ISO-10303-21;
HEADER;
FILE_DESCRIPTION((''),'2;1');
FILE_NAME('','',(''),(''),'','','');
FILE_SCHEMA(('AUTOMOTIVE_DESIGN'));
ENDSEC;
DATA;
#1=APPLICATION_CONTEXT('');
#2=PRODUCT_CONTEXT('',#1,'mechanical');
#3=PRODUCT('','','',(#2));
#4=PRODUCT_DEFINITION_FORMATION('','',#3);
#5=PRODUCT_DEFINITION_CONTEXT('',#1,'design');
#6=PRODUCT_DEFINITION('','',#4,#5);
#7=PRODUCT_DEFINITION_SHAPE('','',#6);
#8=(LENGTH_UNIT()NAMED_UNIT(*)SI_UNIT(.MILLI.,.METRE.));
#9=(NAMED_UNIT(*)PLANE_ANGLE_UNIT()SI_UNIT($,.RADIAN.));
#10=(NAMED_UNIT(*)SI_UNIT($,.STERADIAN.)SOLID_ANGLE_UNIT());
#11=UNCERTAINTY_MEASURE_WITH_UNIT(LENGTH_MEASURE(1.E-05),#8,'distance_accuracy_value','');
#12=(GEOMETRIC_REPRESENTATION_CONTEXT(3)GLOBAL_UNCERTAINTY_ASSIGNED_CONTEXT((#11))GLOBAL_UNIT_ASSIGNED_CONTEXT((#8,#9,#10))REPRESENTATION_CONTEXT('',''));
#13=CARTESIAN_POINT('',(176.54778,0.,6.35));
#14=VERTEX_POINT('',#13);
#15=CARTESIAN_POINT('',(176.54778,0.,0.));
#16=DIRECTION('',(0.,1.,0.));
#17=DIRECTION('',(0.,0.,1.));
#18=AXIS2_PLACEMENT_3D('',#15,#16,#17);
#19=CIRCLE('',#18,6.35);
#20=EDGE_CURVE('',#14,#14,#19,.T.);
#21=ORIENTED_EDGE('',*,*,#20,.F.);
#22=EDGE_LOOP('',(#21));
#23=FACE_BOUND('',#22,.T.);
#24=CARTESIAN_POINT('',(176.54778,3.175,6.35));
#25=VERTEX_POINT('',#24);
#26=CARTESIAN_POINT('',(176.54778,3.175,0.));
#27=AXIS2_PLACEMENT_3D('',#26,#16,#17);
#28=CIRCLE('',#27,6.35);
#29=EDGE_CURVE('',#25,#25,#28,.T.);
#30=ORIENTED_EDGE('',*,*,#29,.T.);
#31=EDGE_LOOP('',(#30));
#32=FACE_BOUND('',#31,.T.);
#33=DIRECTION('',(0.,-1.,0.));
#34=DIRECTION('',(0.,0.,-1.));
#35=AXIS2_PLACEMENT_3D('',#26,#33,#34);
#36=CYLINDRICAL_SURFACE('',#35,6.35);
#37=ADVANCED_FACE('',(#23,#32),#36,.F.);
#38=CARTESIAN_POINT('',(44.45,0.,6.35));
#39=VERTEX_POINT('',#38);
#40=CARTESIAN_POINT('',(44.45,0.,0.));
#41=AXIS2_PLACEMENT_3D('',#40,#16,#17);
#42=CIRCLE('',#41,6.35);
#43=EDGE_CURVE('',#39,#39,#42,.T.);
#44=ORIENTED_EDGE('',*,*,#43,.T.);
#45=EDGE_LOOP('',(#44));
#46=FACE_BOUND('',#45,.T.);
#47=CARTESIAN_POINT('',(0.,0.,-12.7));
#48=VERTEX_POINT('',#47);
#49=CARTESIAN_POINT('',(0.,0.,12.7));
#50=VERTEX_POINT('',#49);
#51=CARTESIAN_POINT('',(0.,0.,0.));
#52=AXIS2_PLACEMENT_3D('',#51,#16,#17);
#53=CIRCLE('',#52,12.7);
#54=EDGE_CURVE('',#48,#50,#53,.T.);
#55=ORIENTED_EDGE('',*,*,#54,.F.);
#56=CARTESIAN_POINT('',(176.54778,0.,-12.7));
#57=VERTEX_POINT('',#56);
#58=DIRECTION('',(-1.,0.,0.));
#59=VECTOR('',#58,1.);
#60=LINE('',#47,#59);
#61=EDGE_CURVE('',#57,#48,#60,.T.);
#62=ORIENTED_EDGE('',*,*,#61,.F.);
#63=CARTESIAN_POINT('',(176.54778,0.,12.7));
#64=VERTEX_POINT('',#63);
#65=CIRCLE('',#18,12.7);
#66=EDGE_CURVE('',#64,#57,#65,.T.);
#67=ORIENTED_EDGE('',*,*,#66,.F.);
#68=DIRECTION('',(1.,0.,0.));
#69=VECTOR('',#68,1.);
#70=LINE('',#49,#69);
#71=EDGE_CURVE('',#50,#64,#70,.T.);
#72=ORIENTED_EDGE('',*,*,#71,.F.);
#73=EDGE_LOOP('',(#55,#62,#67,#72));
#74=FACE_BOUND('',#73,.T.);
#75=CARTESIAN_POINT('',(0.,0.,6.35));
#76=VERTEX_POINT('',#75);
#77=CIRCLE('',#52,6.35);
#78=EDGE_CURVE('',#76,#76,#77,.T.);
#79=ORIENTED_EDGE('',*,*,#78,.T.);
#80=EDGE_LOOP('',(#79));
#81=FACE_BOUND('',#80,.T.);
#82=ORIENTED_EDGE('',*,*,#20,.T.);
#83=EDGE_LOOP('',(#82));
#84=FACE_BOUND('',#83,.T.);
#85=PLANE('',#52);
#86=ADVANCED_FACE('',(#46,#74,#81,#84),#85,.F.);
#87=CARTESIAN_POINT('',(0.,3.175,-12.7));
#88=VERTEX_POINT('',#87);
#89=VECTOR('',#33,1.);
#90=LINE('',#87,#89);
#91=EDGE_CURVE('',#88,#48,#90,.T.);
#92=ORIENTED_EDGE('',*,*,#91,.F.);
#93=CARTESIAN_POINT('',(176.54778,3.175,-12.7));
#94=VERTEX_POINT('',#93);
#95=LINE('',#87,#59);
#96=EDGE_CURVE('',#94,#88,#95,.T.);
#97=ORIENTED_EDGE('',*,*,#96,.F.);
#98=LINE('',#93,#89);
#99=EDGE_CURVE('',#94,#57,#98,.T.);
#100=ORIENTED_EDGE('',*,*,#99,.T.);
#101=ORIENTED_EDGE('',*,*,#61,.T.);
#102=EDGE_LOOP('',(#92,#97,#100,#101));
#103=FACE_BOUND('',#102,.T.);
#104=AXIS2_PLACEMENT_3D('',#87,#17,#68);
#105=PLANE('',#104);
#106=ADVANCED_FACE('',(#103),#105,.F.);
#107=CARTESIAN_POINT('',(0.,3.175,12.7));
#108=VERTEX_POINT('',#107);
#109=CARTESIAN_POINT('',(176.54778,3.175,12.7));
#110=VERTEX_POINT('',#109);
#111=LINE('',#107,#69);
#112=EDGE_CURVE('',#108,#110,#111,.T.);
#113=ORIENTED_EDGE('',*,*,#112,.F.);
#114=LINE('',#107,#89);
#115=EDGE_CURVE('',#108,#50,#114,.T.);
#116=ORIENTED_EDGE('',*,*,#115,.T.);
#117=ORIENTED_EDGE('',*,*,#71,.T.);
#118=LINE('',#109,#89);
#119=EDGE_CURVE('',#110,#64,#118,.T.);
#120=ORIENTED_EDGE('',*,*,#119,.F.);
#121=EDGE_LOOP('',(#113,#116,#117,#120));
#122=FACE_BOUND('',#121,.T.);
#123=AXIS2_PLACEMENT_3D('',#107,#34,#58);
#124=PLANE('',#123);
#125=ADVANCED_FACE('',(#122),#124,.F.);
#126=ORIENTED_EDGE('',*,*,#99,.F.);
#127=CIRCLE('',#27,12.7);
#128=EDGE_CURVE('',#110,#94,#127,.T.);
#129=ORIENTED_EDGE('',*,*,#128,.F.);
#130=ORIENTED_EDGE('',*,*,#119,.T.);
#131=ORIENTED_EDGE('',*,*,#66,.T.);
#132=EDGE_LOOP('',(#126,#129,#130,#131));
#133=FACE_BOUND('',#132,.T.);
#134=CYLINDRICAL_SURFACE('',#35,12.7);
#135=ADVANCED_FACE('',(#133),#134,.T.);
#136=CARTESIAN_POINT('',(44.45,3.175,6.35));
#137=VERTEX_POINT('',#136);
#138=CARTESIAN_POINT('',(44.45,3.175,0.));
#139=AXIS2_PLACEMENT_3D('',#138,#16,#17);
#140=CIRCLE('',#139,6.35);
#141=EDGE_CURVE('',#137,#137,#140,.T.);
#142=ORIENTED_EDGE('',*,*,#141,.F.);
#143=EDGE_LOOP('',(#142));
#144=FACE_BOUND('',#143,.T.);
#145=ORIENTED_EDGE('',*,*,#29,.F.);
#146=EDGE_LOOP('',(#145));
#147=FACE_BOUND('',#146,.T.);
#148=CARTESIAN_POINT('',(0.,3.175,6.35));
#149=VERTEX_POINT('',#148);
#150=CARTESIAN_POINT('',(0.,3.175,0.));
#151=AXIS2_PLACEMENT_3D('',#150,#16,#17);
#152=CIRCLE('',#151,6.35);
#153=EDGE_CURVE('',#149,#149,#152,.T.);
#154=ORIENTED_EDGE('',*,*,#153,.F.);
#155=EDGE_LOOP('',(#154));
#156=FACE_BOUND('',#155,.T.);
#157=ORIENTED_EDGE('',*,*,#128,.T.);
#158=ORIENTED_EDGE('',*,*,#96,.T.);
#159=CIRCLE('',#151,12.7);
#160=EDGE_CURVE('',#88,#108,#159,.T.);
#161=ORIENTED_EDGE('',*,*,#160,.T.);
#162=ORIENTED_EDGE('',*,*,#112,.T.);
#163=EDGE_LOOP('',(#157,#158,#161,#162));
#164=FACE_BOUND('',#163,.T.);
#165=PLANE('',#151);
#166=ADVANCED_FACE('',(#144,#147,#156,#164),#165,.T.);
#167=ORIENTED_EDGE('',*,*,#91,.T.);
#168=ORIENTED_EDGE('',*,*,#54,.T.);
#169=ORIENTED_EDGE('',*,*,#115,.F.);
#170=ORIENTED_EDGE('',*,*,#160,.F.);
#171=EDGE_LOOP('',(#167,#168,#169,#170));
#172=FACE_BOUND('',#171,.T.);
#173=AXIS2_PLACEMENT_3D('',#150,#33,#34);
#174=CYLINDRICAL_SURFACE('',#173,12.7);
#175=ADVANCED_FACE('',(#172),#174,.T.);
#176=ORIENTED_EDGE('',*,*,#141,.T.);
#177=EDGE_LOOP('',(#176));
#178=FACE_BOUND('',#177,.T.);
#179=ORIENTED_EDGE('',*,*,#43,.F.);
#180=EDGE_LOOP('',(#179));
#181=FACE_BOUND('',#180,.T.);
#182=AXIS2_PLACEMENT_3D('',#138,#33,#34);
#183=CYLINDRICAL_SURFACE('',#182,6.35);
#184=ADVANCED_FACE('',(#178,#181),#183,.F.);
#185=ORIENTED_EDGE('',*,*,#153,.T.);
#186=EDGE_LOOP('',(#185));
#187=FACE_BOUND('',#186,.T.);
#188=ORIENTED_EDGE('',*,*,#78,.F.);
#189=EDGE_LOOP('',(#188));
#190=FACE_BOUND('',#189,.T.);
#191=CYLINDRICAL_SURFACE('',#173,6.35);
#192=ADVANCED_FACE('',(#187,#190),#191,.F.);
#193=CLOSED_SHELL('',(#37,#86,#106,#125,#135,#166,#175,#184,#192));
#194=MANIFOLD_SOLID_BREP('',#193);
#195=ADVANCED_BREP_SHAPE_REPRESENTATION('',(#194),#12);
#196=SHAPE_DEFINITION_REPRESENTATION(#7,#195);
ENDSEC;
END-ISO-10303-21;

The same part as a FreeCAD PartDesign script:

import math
import FreeCAD as App
import Part
import Sketcher
from FreeCAD import Vector
Q = App.Units.Quantity

doc = App.newDocument("Part")
body = doc.addObject("PartDesign::Body", "Body")

# Sketch on XZ plane
sketch1 = doc.addObject("Sketcher::SketchObject", "Sketch")
body.addObject(sketch1)
sketch1.AttachmentSupport = (doc.XZ_Plane, [""])
sketch1.MapMode = "FlatFace"
sketch1.addGeometry([
    Part.LineSegment(Vector(177, -13, 0), Vector(0, -13, 0)),  # 0
    Part.ArcOfCircle(Part.Circle(Vector(0, 0, 0), Vector(0, 0, 1), 13), math.radians(90), math.radians(270)),  # 1
    Part.LineSegment(Vector(0, 13, 0), Vector(177, 13, 0)),  # 2
    Part.ArcOfCircle(Part.Circle(Vector(177, 0, 0), Vector(0, 0, 1), 13), math.radians(-90), math.radians(90)),  # 3
    Part.Circle(Vector(177, 0, 0), Vector(0, 0, 1), 6),  # 4
    Part.Circle(Vector(44, 0, 0), Vector(0, 0, 1), 6),  # 5
    Part.Circle(Vector(0, 0, 0), Vector(0, 0, 1), 6),  # 6
], False)
sketch1.addConstraint([
    Sketcher.Constraint("Tangent", 0, 2, 1, 2),
    Sketcher.Constraint("Tangent", 1, 1, 2, 1),
    Sketcher.Constraint("Tangent", 2, 2, 3, 2),
    Sketcher.Constraint("Tangent", 3, 1, 0, 1),
    Sketcher.Constraint("Horizontal", 0),
    Sketcher.Constraint("Horizontal", 2),
    Sketcher.Constraint("Coincident", 1, 3, -1, 1),
    Sketcher.Constraint("Coincident", 6, 3, -1, 1),
    Sketcher.Constraint("Coincident", 4, 3, 3, 3),
    Sketcher.Constraint("Equal", 4, 5),
    Sketcher.Constraint("Equal", 5, 6),
    Sketcher.Constraint("PointOnObject", 5, 3, -1),
    Sketcher.Constraint("Diameter", 4, Q("0.5 in")),
    Sketcher.Constraint("Radius", 1, Q("0.5 in")),
    Sketcher.Constraint("DistanceX", -1, 1, 5, 3, Q("1.75 in")),
    Sketcher.Constraint("DistanceX", 0, 2, 0, 1, Q("6.9507 in")),
])
pad1 = doc.addObject("PartDesign::Pad", "Pad")
body.addObject(pad1)
pad1.Profile = sketch1
pad1.Length = Q("0.125 in")
pad1.Reversed = True

doc.recompute()
